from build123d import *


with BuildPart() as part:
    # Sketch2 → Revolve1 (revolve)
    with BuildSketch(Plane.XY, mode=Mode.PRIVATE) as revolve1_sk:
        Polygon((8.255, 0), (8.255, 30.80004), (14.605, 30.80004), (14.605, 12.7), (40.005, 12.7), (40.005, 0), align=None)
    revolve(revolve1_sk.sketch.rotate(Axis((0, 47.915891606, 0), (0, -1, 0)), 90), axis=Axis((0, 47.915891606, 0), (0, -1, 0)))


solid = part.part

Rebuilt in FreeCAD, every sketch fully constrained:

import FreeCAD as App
import Part
import Sketcher

V = App.Vector
Q = App.Units.Quantity


def add_polygon(sketch, points):
    """Adds a closed chain of lines whose ends are joined by coincident constraints."""
    first, n = sketch.GeometryCount, len(points)
    for a, b in zip(points, points[1:] + points[:1]):
        sketch.addGeometry(Part.LineSegment(App.Vector(*a, 0), App.Vector(*b, 0)), False)
    for i in range(n):
        sketch.addConstraint(Sketcher.Constraint("Coincident", first + i, 2, first + (i + 1) % n, 1))

doc = App.newDocument("Part")
body = doc.addObject("PartDesign::Body", "Body")

sketch1 = body.newObject("Sketcher::SketchObject", "Sketch")
sketch1.AttachmentSupport = (doc.getObject("XY_Plane"), [""])
sketch1.MapMode = "FlatFace"
add_polygon(sketch1, [(8.255, 30.80004), (8.255, 0), (40.005, 0), (40.005, 12.7), (14.605, 12.7), (14.605, 30.80004)])
sketch1.addConstraint(Sketcher.Constraint("Vertical", 0))
sketch1.addConstraint(Sketcher.Constraint("Horizontal", 1))
sketch1.addConstraint(Sketcher.Constraint("Vertical", 2))
sketch1.addConstraint(Sketcher.Constraint("Horizontal", 3))
sketch1.addConstraint(Sketcher.Constraint("Vertical", 4))
sketch1.addConstraint(Sketcher.Constraint("Horizontal", 5))
sketch1.addConstraint(Sketcher.Constraint("PointOnObject", 0, 2, -1))
sketch1.addConstraint(Sketcher.Constraint("DistanceX", 3, 2, 3, 1, Q("1 in")))
sketch1.addConstraint(Sketcher.Constraint("DistanceY", 2, 1, 2, 2, Q("0.5 in")))
sketch1.addConstraint(Sketcher.Constraint("DistanceX", 1, 1, 1, 2, Q("1.25 in")))
sketch1.addConstraint(Sketcher.Constraint("DistanceY", 0, 2, 0, 1, Q("1.2126 in")))
sketch1.addConstraint(Sketcher.Constraint("DistanceX", -1, 1, 0, 2, Q("0.325 in")))
revolution = body.newObject("PartDesign::Revolution", "Revolution")
revolution.Profile = sketch1
revolution.ReferenceAxis = (sketch1, ["V_Axis"])
revolution.Angle = 360

doc.recompute()
